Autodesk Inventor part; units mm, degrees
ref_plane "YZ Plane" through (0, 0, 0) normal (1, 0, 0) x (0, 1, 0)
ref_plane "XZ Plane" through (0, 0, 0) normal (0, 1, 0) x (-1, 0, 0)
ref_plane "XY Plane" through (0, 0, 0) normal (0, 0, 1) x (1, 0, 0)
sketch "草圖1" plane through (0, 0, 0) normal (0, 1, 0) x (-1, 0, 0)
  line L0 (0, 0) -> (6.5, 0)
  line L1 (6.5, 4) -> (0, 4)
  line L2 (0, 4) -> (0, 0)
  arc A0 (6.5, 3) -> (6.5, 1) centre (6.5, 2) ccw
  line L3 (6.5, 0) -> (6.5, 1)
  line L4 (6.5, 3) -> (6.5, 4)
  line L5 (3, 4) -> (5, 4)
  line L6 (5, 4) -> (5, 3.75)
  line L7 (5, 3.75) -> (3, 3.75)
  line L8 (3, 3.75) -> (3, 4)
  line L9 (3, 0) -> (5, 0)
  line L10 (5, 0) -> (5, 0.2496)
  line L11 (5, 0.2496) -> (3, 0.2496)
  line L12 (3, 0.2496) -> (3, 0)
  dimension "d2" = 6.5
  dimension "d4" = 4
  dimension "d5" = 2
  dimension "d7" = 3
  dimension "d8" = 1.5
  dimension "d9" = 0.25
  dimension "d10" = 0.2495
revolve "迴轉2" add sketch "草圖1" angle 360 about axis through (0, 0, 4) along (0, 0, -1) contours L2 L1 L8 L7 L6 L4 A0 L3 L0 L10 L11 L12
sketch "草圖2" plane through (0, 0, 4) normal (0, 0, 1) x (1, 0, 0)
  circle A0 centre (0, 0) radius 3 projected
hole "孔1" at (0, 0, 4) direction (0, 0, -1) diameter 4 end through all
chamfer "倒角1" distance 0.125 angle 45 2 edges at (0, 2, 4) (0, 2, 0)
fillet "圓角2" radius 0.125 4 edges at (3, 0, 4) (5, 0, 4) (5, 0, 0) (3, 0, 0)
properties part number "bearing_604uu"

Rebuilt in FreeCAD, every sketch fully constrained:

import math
import FreeCAD as App
import Part
import Sketcher
from FreeCAD import Vector


def edges_at(feature, points):
    """Names of the edges that pass closest to the given points."""
    edges = feature.Shape.Edges
    near = lambda p: min(range(len(edges)), key=lambda i: edges[i].distToShape(Part.Vertex(*p))[0])
    return sorted({f"Edge{near(p) + 1}" for p in points})

doc = App.newDocument("Part")
body = doc.addObject("PartDesign::Body", "Body")

# Sketch on XZ plane
sketch1 = body.newObject("Sketcher::SketchObject", "Sketch")
sketch1.AttachmentSupport = (doc.getObject("XZ_Plane"), [""])
sketch1.MapMode = "FlatFace"
sketch1.addGeometry([
    Part.LineSegment(Vector(0, 4, 0), Vector(0, 0, 0)),  # 0
    Part.LineSegment(Vector(0, 0, 0), Vector(-3, 0, 0)),  # 1
    Part.LineSegment(Vector(-3, 0, 0), Vector(-3, 0.2496, 0)),  # 2
    Part.LineSegment(Vector(-3, 0.2496, 0), Vector(-5, 0.2496, 0)),  # 3
    Part.LineSegment(Vector(-5, 0.2496, 0), Vector(-5, 0, 0)),  # 4
    Part.LineSegment(Vector(-5, 0, 0), Vector(-6.5, 0, 0)),  # 5
    Part.LineSegment(Vector(-6.5, 0, 0), Vector(-6.5, 1, 0)),  # 6
    Part.ArcOfCircle(Part.Circle(Vector(-6.5, 2, 0), Vector(0, 0, 1), 1), math.radians(-90), math.radians(90)),  # 7
    Part.LineSegment(Vector(-6.5, 3, 0), Vector(-6.5, 4, 0)),  # 8
    Part.LineSegment(Vector(-6.5, 4, 0), Vector(-5, 4, 0)),  # 9
    Part.LineSegment(Vector(-5, 4, 0), Vector(-5, 3.75, 0)),  # 10
    Part.LineSegment(Vector(-5, 3.75, 0), Vector(-3, 3.75, 0)),  # 11
    Part.LineSegment(Vector(-3, 3.75, 0), Vector(-3, 4, 0)),  # 12
    Part.LineSegment(Vector(-3, 4, 0), Vector(0, 4, 0)),  # 13
], False)
sketch1.addConstraint([
    Sketcher.Constraint("Coincident", 0, 2, 1, 1),
    Sketcher.Constraint("Coincident", 1, 2, 2, 1),
    Sketcher.Constraint("Coincident", 2, 2, 3, 1),
    Sketcher.Constraint("Coincident", 3, 2, 4, 1),
    Sketcher.Constraint("Coincident", 4, 2, 5, 1),
    Sketcher.Constraint("Coincident", 5, 2, 6, 1),
    Sketcher.Constraint("Coincident", 6, 2, 7, 1),
    Sketcher.Constraint("Coincident", 7, 2, 8, 1),
    Sketcher.Constraint("Coincident", 8, 2, 9, 1),
    Sketcher.Constraint("Coincident", 9, 2, 10, 1),
    Sketcher.Constraint("Coincident", 10, 2, 11, 1),
    Sketcher.Constraint("Coincident", 11, 2, 12, 1),
    Sketcher.Constraint("Coincident", 12, 2, 13, 1),
    Sketcher.Constraint("Coincident", 13, 2, 0, 1),
    Sketcher.Constraint("Vertical", 0),
    Sketcher.Constraint("Horizontal", 1),
    Sketcher.Constraint("Vertical", 2),
    Sketcher.Constraint("Horizontal", 3),
    Sketcher.Constraint("Vertical", 4),
    Sketcher.Constraint("Horizontal", 5),
    Sketcher.Constraint("Vertical", 6),
    Sketcher.Constraint("Vertical", 8),
    Sketcher.Constraint("Horizontal", 9),
    Sketcher.Constraint("Vertical", 10),
    Sketcher.Constraint("Horizontal", 11),
    Sketcher.Constraint("Vertical", 12),
    Sketcher.Constraint("Horizontal", 13),
    Sketcher.Constraint("Coincident", 0, 2, -1, 1),
    Sketcher.Constraint("PointOnObject", 4, 2, -1),
    Sketcher.Constraint("Horizontal", 9, 2, 12, 2),
    Sketcher.Constraint("Vertical", 7, 3, 5, 2),
    Sketcher.Constraint("Vertical", 6, 2, 7, 2),
    Sketcher.Constraint("Vertical", 4, 2, 9, 2),
    Sketcher.Constraint("Vertical", 2, 2, 11, 2),
    Sketcher.Constraint("Equal", 6, 8),
    Sketcher.Constraint("Radius", 7, 1.0),
    Sketcher.Constraint("DistanceX", 1, 2, 1, 1, 3.0),
    Sketcher.Constraint("DistanceX", 3, 2, 3, 1, 2.0),
    Sketcher.Constraint("DistanceY", 0, 2, 0, 1, 4.0),
    Sketcher.Constraint("DistanceX", 5, 2, 5, 1, 1.5),
    Sketcher.Constraint("DistanceY", 10, 2, 10, 1, 0.25),
    Sketcher.Constraint("DistanceY", 2, 1, 2, 2, 0.2496),
])
revolution = body.newObject("PartDesign::Revolution", "Revolution")
revolution.Profile = sketch1
revolution.ReferenceAxis = (sketch1, ["V_Axis"])
revolution.Angle = 360

# Sketch on XY plane
sketch2 = body.newObject("Sketcher::SketchObject", "Sketch001")
sketch2.AttachmentSupport = (doc.getObject("XY_Plane"), [""])
sketch2.MapMode = "FlatFace"
sketch2.AttachmentOffset = App.Placement(Vector(0, 0, 4), App.Rotation())
sketch2.addGeometry(Part.Circle(Vector(0, 0, 0), Vector(0, 0, 1), 2), False)
sketch2.addConstraint([
    Sketcher.Constraint("Coincident", 0, 3, -1, 1),
    Sketcher.Constraint("Diameter", 0, 4.0),
])
doc.recompute()
hole = body.newObject("PartDesign::Hole", "Hole")
hole.Profile = sketch2
hole.ThreadType = "None"
hole.Diameter = 4
hole.DepthType = "ThroughAll"
doc.recompute()

chamfer = body.newObject("PartDesign::Chamfer", "Chamfer")
chamfer.Base = (hole, edges_at(hole, [(0, 2, 4), (0, 2, 0)]))
chamfer.Size = 0.125
doc.recompute()

fillet = body.newObject("PartDesign::Fillet", "Fillet")
fillet.Base = (chamfer, edges_at(chamfer, [
    (3, 0, 4),
    (5, 0, 4),
    (5, 0, 0),
    (3, 0, 0),
]))
fillet.Radius = 0.125

doc.recompute()
